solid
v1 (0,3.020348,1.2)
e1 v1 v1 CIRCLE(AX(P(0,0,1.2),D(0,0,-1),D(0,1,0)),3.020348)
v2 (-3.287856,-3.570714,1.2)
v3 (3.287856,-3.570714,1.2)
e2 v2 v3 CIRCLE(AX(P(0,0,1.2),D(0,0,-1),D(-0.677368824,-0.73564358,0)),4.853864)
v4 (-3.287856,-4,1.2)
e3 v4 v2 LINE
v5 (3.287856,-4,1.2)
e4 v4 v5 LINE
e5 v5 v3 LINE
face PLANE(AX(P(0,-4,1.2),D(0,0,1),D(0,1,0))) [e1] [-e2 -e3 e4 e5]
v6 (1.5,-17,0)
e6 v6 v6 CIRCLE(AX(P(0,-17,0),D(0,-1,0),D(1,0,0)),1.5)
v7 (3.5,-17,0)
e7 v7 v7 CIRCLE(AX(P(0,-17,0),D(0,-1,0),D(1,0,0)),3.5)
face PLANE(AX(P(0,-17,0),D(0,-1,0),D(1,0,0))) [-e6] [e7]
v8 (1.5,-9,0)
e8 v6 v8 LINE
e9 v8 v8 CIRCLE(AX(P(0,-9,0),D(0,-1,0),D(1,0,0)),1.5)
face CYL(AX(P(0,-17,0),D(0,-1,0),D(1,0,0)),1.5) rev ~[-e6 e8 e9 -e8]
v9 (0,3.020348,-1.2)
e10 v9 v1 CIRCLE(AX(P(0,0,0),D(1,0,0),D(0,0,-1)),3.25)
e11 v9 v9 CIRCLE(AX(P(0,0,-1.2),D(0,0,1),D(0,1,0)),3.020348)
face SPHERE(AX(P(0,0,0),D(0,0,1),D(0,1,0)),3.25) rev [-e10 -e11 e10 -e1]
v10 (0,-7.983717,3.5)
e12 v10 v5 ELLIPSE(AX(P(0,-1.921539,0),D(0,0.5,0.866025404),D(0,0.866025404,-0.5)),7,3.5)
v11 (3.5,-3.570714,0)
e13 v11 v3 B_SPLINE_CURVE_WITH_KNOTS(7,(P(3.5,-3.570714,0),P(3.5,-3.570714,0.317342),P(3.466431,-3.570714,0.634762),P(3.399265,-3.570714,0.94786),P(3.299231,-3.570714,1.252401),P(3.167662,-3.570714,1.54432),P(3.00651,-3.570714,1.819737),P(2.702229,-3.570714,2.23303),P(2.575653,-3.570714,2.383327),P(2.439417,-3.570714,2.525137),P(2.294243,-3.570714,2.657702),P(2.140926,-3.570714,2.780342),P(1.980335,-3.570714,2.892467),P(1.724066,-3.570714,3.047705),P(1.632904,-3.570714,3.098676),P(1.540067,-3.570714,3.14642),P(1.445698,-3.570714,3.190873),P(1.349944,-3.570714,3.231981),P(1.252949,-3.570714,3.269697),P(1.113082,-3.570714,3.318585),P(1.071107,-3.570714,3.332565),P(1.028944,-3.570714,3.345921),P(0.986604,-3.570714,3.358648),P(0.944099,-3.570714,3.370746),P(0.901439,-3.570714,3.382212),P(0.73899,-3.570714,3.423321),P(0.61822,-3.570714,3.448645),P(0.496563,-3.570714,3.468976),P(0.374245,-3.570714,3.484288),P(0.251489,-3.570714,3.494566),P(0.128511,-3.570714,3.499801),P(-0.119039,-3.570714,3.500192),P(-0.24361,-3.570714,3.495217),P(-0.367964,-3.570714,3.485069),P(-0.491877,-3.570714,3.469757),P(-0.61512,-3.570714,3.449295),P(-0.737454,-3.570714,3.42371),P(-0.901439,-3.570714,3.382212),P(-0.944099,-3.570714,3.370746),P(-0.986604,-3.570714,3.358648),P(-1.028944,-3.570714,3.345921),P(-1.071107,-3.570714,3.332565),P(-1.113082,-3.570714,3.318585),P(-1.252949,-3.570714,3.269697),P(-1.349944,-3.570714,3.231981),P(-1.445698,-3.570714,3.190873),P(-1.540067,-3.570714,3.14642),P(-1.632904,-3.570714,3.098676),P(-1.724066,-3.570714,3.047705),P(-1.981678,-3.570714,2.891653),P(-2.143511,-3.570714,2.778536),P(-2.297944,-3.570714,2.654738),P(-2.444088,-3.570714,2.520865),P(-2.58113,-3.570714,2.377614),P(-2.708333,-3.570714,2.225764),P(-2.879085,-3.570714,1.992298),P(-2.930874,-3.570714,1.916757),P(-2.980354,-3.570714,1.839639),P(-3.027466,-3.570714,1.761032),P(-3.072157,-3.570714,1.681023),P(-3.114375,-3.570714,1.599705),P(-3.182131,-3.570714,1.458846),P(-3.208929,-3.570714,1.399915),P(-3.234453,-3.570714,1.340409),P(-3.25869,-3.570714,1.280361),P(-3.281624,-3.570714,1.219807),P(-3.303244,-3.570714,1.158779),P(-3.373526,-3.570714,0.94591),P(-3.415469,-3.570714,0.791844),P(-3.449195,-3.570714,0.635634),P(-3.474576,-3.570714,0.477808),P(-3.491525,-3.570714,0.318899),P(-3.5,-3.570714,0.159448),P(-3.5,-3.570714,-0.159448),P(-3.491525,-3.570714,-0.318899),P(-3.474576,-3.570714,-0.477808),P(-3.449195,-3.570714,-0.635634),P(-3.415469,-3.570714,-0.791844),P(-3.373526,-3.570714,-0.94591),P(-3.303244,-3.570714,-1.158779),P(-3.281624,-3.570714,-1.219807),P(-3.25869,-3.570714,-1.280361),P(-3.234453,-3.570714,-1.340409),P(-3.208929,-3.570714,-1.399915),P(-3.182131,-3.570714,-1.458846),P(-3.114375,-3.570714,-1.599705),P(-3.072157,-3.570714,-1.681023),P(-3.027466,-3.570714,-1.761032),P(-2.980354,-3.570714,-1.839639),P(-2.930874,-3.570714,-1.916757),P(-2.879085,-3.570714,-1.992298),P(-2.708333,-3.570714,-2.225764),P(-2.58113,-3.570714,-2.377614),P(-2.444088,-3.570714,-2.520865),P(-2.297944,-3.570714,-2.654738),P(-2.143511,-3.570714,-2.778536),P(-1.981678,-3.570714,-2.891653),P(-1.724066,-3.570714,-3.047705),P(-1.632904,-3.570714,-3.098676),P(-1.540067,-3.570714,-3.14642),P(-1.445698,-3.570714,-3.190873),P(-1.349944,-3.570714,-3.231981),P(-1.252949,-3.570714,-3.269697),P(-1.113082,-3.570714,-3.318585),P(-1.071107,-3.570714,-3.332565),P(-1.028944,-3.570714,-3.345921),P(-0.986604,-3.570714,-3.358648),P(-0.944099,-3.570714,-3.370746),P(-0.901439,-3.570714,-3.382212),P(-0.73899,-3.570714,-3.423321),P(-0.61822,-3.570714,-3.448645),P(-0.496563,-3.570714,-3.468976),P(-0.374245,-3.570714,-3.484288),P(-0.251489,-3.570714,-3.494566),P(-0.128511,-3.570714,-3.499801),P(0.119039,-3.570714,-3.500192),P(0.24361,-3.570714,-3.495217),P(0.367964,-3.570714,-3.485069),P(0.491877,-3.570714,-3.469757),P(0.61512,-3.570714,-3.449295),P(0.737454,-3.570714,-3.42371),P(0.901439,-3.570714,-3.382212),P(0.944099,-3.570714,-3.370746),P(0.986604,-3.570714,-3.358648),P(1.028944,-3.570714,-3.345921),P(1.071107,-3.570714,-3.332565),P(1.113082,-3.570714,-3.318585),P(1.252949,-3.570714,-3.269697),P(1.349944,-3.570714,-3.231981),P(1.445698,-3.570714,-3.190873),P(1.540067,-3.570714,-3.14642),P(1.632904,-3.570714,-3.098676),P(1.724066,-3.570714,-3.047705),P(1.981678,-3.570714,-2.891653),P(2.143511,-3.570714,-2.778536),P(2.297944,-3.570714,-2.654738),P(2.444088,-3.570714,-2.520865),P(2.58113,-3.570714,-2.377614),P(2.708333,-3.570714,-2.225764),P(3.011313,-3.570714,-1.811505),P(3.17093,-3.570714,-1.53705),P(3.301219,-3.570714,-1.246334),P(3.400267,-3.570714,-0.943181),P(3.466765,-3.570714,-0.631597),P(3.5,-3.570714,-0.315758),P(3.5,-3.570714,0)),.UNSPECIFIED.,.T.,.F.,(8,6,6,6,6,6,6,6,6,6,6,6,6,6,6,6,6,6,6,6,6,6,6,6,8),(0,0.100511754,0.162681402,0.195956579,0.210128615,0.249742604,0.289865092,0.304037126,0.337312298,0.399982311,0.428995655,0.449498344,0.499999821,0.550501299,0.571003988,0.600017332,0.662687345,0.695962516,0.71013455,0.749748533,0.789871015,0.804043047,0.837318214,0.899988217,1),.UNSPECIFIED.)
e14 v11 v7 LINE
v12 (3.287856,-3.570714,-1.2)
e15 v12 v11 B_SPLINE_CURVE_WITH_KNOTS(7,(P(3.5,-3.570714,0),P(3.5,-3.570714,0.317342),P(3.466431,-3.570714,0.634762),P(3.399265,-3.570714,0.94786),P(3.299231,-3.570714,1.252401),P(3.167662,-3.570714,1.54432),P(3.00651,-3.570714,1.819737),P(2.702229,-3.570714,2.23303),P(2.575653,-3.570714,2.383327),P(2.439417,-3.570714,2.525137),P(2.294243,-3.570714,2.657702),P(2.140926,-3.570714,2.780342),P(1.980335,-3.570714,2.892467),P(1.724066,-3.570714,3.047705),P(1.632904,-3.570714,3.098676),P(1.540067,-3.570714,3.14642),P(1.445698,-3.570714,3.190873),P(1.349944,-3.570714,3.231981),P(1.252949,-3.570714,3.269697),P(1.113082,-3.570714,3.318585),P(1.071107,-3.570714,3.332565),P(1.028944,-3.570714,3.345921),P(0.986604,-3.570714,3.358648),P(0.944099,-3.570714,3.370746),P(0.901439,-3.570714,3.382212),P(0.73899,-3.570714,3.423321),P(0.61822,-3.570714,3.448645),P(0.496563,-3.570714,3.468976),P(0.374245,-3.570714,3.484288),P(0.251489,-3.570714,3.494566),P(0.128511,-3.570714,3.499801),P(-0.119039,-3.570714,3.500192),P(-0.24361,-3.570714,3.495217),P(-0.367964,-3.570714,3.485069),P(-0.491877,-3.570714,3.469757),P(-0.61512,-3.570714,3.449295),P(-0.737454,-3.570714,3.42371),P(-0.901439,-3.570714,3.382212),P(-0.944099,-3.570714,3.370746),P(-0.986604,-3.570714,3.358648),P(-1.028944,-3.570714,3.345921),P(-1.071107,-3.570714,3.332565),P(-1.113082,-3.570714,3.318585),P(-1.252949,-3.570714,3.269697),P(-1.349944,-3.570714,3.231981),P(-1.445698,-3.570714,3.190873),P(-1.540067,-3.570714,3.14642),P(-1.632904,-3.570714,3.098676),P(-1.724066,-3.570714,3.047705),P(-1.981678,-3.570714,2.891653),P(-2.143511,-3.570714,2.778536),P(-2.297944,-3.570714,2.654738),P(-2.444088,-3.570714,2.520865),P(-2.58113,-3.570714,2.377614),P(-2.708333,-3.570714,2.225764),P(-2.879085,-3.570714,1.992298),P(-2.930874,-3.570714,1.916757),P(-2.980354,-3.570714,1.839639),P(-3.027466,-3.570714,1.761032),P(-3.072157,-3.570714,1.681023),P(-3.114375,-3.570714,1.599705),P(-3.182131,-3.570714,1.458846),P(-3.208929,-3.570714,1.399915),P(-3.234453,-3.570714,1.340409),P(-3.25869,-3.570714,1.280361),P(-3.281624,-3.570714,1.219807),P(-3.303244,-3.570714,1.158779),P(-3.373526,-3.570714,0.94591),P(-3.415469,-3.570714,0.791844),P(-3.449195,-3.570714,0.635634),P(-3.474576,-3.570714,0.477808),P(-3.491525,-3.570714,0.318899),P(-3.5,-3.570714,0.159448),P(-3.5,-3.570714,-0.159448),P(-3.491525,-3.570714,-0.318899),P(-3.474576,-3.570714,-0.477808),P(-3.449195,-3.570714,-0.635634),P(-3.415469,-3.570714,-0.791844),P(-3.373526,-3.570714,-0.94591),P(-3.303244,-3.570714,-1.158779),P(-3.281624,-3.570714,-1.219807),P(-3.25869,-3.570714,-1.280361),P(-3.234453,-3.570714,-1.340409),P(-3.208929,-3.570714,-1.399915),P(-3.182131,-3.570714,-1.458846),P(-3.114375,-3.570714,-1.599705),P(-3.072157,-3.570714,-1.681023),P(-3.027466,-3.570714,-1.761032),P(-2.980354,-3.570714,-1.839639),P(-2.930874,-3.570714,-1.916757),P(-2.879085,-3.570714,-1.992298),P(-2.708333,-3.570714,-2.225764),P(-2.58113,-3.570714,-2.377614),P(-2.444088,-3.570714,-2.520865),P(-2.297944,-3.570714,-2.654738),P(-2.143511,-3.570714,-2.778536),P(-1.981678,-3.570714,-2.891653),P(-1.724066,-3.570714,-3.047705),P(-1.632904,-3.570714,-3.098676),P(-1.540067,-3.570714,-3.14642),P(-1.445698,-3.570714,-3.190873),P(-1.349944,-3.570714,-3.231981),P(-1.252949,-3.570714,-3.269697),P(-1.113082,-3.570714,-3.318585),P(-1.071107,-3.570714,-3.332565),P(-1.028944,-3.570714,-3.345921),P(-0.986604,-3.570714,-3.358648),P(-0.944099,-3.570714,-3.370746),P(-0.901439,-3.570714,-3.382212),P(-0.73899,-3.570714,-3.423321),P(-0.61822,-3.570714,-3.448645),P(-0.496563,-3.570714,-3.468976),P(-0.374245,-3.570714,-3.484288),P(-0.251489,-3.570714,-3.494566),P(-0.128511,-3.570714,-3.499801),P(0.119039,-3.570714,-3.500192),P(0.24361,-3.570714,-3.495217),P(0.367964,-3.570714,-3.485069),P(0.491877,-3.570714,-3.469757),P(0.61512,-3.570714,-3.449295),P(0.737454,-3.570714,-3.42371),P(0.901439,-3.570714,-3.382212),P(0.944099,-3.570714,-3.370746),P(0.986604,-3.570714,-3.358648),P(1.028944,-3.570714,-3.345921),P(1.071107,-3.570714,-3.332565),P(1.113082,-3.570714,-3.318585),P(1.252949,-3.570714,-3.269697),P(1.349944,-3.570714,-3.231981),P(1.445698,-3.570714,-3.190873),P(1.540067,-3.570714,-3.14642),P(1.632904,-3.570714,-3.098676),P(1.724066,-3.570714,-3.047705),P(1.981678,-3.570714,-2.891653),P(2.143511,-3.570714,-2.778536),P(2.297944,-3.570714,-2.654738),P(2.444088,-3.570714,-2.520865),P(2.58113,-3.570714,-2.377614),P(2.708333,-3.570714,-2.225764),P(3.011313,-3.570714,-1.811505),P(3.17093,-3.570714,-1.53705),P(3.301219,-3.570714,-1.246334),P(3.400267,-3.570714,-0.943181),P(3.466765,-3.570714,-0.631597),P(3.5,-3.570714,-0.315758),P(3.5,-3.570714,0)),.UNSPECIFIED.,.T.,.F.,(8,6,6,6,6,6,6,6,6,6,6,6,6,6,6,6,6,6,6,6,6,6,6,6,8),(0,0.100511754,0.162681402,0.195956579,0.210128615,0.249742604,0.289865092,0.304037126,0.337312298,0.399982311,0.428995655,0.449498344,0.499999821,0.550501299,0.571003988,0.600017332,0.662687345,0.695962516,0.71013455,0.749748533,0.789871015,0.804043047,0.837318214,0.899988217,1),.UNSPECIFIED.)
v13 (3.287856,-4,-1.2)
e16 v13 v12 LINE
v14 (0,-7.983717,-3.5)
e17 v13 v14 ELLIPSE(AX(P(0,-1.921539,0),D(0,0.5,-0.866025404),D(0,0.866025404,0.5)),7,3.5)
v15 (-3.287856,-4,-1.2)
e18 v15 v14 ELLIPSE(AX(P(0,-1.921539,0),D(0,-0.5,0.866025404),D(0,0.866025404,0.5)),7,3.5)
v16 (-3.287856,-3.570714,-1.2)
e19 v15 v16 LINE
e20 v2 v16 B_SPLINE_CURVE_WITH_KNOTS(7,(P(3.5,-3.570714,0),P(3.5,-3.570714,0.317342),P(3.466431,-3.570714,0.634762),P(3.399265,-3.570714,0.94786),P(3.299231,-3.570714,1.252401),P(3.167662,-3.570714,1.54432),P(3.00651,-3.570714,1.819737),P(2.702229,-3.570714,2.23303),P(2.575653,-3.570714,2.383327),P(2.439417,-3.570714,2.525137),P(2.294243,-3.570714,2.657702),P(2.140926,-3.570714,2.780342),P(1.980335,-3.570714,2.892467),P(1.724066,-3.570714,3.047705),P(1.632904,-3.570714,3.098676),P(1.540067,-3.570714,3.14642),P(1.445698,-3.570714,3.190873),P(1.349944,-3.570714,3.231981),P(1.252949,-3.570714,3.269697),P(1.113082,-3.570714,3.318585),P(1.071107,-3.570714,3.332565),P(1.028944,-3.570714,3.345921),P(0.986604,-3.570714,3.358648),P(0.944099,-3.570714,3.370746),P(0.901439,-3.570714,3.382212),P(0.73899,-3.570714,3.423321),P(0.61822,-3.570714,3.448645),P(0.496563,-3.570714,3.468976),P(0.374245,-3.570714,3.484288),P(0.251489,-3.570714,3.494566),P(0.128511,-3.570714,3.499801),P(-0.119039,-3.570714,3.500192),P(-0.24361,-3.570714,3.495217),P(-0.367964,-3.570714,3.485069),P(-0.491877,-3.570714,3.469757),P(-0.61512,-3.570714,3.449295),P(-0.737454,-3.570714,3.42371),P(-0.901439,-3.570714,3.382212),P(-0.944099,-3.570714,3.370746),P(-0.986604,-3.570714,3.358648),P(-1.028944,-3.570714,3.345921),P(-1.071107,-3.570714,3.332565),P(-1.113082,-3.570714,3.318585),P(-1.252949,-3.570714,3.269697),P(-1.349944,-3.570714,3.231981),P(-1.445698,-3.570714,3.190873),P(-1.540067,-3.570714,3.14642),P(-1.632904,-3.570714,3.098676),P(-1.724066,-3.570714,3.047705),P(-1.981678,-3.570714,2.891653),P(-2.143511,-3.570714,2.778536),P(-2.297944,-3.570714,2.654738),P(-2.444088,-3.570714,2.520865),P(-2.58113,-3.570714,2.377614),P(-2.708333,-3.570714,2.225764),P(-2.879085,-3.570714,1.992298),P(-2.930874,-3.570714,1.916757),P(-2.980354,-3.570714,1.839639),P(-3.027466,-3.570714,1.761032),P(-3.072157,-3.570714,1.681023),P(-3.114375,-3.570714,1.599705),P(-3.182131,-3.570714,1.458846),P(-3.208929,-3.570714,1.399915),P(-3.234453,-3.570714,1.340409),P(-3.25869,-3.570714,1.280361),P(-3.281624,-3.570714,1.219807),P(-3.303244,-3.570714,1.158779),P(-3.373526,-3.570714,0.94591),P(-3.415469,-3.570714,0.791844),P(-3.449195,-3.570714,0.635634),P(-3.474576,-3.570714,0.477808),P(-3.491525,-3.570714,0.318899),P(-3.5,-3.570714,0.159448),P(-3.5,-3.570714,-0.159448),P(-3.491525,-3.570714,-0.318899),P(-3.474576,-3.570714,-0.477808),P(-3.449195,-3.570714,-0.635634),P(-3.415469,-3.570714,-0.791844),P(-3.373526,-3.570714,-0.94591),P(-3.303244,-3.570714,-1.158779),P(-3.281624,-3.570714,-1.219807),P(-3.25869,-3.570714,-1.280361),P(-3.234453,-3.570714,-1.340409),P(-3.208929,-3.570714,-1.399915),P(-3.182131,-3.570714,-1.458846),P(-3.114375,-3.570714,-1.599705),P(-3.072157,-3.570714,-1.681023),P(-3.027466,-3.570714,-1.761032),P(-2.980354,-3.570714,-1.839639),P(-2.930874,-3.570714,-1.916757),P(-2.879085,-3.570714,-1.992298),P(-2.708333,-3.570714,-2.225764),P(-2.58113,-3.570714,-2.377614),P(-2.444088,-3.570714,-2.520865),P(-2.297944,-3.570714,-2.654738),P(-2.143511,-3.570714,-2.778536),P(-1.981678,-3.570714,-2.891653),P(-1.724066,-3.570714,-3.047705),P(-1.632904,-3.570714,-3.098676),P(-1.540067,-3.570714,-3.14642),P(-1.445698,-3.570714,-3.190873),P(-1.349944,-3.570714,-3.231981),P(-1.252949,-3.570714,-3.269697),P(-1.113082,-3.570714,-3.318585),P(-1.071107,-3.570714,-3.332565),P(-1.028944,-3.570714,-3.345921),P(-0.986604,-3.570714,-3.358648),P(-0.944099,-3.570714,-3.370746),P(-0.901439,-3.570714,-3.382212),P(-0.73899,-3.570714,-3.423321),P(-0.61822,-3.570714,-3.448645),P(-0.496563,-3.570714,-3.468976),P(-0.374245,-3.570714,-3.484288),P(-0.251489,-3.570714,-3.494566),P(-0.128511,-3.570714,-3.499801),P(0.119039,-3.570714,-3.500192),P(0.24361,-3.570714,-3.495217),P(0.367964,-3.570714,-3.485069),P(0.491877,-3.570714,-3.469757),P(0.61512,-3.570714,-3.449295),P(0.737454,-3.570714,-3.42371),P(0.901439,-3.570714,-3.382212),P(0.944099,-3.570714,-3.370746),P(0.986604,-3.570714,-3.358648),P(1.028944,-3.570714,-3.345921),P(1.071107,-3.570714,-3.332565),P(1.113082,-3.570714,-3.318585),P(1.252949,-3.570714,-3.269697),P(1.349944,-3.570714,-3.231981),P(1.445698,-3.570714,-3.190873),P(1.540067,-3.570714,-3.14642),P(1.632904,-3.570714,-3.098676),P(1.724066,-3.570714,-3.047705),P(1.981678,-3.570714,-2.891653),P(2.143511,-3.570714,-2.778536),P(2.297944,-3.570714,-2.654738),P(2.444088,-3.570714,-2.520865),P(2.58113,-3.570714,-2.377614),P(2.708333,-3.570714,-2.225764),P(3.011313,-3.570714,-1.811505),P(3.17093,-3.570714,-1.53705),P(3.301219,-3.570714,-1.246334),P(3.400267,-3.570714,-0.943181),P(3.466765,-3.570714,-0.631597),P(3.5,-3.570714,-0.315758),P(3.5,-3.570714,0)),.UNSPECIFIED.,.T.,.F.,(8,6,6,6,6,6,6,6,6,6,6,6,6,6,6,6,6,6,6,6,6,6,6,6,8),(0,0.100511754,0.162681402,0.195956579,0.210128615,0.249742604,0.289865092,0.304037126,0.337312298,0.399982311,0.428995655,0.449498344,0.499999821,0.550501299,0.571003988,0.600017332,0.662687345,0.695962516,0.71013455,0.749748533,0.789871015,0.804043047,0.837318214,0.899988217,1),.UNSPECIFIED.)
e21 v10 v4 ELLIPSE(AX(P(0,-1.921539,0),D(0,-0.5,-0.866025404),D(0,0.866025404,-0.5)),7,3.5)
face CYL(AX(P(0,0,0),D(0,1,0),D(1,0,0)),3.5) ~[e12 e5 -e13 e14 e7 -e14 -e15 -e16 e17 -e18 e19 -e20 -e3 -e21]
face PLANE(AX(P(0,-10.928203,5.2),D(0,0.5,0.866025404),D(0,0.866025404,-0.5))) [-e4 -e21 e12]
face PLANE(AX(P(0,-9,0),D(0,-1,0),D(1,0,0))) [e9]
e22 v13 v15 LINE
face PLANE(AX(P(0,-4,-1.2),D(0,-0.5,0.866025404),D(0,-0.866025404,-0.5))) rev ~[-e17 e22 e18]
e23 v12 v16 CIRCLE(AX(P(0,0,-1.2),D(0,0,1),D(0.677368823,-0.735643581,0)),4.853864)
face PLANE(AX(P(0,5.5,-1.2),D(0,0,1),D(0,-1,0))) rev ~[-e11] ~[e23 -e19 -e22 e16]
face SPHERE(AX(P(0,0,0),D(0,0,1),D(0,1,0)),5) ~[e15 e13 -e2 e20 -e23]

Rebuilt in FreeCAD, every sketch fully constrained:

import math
import FreeCAD as App
import Part
import Sketcher
from FreeCAD import Vector
Q = App.Units.Quantity

doc = App.newDocument("Part")
body = doc.addObject("PartDesign::Body", "Body")

# Sketch on YZ plane
sketch1 = body.newObject("Sketcher::SketchObject", "Sketch")
sketch1.AttachmentSupport = (doc.getObject("YZ_Plane"), [""])
sketch1.MapMode = "FlatFace"
sketch1.addGeometry(Part.LineSegment(Vector(0, 5, 0), Vector(0, -5, 0)), False)
sketch1.addGeometry(Part.ArcOfCircle(Part.Circle(Vector(0, 0, 0), Vector(0, 0, 1), 5), math.radians(-90), math.radians(90)), False)
sketch1.addConstraint(Sketcher.Constraint("Coincident", 0, 1, 1, 2))
sketch1.addConstraint(Sketcher.Constraint("Coincident", 1, 1, 0, 2))
sketch1.addConstraint(Sketcher.Constraint("Vertical", 0))
sketch1.addConstraint(Sketcher.Constraint("Coincident", 1, 3, -1, 1))
sketch1.addConstraint(Sketcher.Constraint("PointOnObject", 0, 1, -2))
sketch1.addConstraint(Sketcher.Constraint("Radius", 1, 5.0))
revolution = body.newObject("PartDesign::Revolution", "Revolution")
revolution.Profile = sketch1
revolution.ReferenceAxis = (sketch1, ["V_Axis"])
revolution.Angle = 360

# Sketch on XZ plane
sketch2 = body.newObject("Sketcher::SketchObject", "Sketch001")
sketch2.AttachmentSupport = (doc.getObject("XZ_Plane"), [""])
sketch2.MapMode = "FlatFace"
sketch2.addGeometry(Part.Circle(Vector(0, 0, 0), Vector(0, 0, 1), 3.5), False)
sketch2.addConstraint(Sketcher.Constraint("Coincident", 0, 3, -1, 1))
sketch2.addConstraint(Sketcher.Constraint("Diameter", 0, 7.0))
pad1 = body.newObject("PartDesign::Pad", "Pad")
pad1.Profile = sketch2
pad1.Length = 17

# Sketch on YZ plane
sketch3 = body.newObject("Sketcher::SketchObject", "Sketch002")
sketch3.AttachmentSupport = (doc.getObject("YZ_Plane"), [""])
sketch3.MapMode = "FlatFace"
sketch3.addGeometry(Part.LineSegment(Vector(0, 3.2, 0), Vector(0, -3.2, 0)), False)
sketch3.addGeometry(Part.ArcOfCircle(Part.Circle(Vector(0, 0, 0), Vector(0, 0, 1), 3.2), math.radians(-90), math.radians(90)), False)
sketch3.addConstraint(Sketcher.Constraint("Coincident", 0, 1, 1, 2))
sketch3.addConstraint(Sketcher.Constraint("Coincident", 1, 1, 0, 2))
sketch3.addConstraint(Sketcher.Constraint("Vertical", 0))
sketch3.addConstraint(Sketcher.Constraint("Coincident", 1, 3, -1, 1))
sketch3.addConstraint(Sketcher.Constraint("PointOnObject", 0, 1, -2))
sketch3.addConstraint(Sketcher.Constraint("Radius", 1, 3.25))
groove = body.newObject("PartDesign::Groove", "Groove")
groove.Profile = sketch3
groove.ReferenceAxis = (sketch3, ["V_Axis"])
groove.Angle = 360

# Sketch on YZ plane
sketch4 = body.newObject("Sketcher::SketchObject", "Sketch003")
sketch4.AttachmentSupport = (doc.getObject("YZ_Plane"), [""])
sketch4.MapMode = "FlatFace"
sketch4.addGeometry(Part.LineSegment(Vector(-4, 1.2, 0), Vector(5.5, 1.2, 0)), False)
sketch4.addGeometry(Part.LineSegment(Vector(5.5, 1.2, 0), Vector(5.5, 5.2, 0)), False)
sketch4.addGeometry(Part.LineSegment(Vector(5.5, 5.2, 0), Vector(-10.9, 5.2, 0)), False)
sketch4.addGeometry(Part.LineSegment(Vector(-10.9, 5.2, 0), Vector(-4, 1.2, 0)), False)
sketch4.addGeometry(Part.LineSegment(Vector(-10.9, -5.2, 0), Vector(5.5, -5.2, 0)), False)
sketch4.addGeometry(Part.LineSegment(Vector(5.5, -5.2, 0), Vector(5.5, -1.2, 0)), False)
sketch4.addGeometry(Part.LineSegment(Vector(5.5, -1.2, 0), Vector(-4, -1.2, 0)), False)
sketch4.addGeometry(Part.LineSegment(Vector(-4, -1.2, 0), Vector(-10.9, -5.2, 0)), False)
sketch4.addConstraint(Sketcher.Constraint("Coincident", 0, 2, 1, 1))
sketch4.addConstraint(Sketcher.Constraint("Coincident", 1, 2, 2, 1))
sketch4.addConstraint(Sketcher.Constraint("Coincident", 2, 2, 3, 1))
sketch4.addConstraint(Sketcher.Constraint("Coincident", 3, 2, 0, 1))
sketch4.addConstraint(Sketcher.Constraint("Coincident", 4, 2, 5, 1))
sketch4.addConstraint(Sketcher.Constraint("Coincident", 5, 2, 6, 1))
sketch4.addConstraint(Sketcher.Constraint("Coincident", 6, 2, 7, 1))
sketch4.addConstraint(Sketcher.Constraint("Coincident", 7, 2, 4, 1))
sketch4.addConstraint(Sketcher.Constraint("Horizontal", 0))
sketch4.addConstraint(Sketcher.Constraint("Vertical", 1))
sketch4.addConstraint(Sketcher.Constraint("Horizontal", 2))
sketch4.addConstraint(Sketcher.Constraint("Horizontal", 4))
sketch4.addConstraint(Sketcher.Constraint("Vertical", 5))
sketch4.addConstraint(Sketcher.Constraint("Horizontal", 6))
sketch4.addConstraint(Sketcher.Constraint("Symmetric", 1, 2, 4, 2, -1))
sketch4.addConstraint(Sketcher.Constraint("Symmetric", 3, 2, 6, 2, -1))
sketch4.addConstraint(Sketcher.Constraint("Vertical", 2, 2, 7, 2))
sketch4.addConstraint(Sketcher.Constraint("DistanceY", 1, 1, 1, 2, 4.0))
sketch4.addConstraint(Sketcher.Constraint("Angle", 3, Q("-30 deg")))
sketch4.addConstraint(Sketcher.Constraint("DistanceX", 0, 1, 0, 2, 9.5))
sketch4.addConstraint(Sketcher.Constraint("DistanceX", 3, 2, -1, 1, 4.0))
sketch4.addConstraint(Sketcher.Constraint("DistanceY", -1, 1, 0, 2, 1.2))
pocket1 = body.newObject("PartDesign::Pocket", "Pocket")
pocket1.Profile = sketch4
pocket1.Type = "ThroughAll"
pocket1.Midplane = True

# Sketch on XZ plane
sketch5 = body.newObject("Sketcher::SketchObject", "Sketch004")
sketch5.AttachmentSupport = (doc.getObject("XZ_Plane"), [""])
sketch5.MapMode = "FlatFace"
sketch5.AttachmentOffset = App.Placement(Vector(0, 0, 17), App.Rotation())
sketch5.addGeometry(Part.Circle(Vector(0, 0, 0), Vector(0, 0, 1), 1.5), False)
sketch5.addConstraint(Sketcher.Constraint("Coincident", 0, 3, -1, 1))
sketch5.addConstraint(Sketcher.Constraint("Diameter", 0, 3.0))
pocket2 = body.newObject("PartDesign::Pocket", "Pocket001")
pocket2.Profile = sketch5
pocket2.Length = 8

doc.recompute()
